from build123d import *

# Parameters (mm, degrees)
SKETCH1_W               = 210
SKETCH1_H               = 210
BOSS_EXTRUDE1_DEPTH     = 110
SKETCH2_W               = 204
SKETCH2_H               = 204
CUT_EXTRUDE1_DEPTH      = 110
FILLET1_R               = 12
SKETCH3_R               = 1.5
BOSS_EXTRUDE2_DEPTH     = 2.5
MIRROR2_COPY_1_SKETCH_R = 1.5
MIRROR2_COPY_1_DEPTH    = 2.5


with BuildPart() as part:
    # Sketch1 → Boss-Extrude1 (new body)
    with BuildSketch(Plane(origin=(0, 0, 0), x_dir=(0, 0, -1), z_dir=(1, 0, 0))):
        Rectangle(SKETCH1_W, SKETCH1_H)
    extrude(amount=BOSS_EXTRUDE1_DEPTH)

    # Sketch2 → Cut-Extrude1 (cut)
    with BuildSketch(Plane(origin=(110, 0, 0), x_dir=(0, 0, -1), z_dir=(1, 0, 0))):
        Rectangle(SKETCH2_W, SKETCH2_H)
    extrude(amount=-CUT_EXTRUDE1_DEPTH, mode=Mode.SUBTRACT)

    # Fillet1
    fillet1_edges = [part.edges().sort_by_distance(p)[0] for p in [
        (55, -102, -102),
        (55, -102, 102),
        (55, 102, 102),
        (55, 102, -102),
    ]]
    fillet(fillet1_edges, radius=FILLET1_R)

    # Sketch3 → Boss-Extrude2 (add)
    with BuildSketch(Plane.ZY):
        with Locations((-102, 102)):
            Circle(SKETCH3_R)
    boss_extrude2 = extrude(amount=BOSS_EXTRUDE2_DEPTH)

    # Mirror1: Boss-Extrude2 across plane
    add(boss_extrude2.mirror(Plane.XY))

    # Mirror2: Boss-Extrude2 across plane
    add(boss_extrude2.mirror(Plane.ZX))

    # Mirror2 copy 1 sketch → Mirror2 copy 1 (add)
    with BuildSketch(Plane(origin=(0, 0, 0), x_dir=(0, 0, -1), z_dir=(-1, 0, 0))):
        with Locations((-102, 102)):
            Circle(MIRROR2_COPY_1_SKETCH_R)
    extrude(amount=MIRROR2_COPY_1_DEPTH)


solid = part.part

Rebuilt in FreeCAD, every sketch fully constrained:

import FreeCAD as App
import Part
import Sketcher
from FreeCAD import Vector
Q = App.Units.Quantity


def edges_at(feature, points):
    """Names of the edges that pass closest to the given points."""
    edges = feature.Shape.Edges
    near = lambda p: min(range(len(edges)), key=lambda i: edges[i].distToShape(Part.Vertex(*p))[0])
    return sorted({f"Edge{near(p) + 1}" for p in points})

doc = App.newDocument("Part")
params = doc.addObject("Spreadsheet::Sheet", "Params")
for row, (alias, value) in enumerate([
    ("sketch1_width", "210 mm"),
    ("pad1_length", "110 mm"),
    ("sketch2_width", "204 mm"),
    ("pocket1_length", "110 mm"),
    ("fillet_radius", "12 mm"),
    ("sketch3_diameter", "3 mm"),
    ("pad2_length", "2.5 mm"),
    ("sketch4_diameter", "3 mm"),
    ("pad3_length", "2.5 mm"),
], start=1):
    params.set(f"A{row}", alias)
    params.set(f"B{row}", "=" + value)
    params.setAlias(f"B{row}", alias)

body = doc.addObject("PartDesign::Body", "Body")

sketch1 = body.newObject("Sketcher::SketchObject", "Sketch")
sketch1.AttachmentSupport = (doc.getObject("YZ_Plane"), [""])
sketch1.MapMode = "FlatFace"
sketch1.addGeometry([
    Part.LineSegment(Vector(105, 105, 0), Vector(-105, 105, 0)),
    Part.LineSegment(Vector(-105, 105, 0), Vector(-105, -105, 0)),
    Part.LineSegment(Vector(-105, -105, 0), Vector(105, -105, 0)),
    Part.LineSegment(Vector(105, -105, 0), Vector(105, 105, 0)),
], False)
sketch1.addConstraint([
    Sketcher.Constraint("Coincident", 0, 2, 1, 1),
    Sketcher.Constraint("Coincident", 1, 2, 2, 1),
    Sketcher.Constraint("Coincident", 2, 2, 3, 1),
    Sketcher.Constraint("Coincident", 3, 2, 0, 1),
    Sketcher.Constraint("Horizontal", 0),
    Sketcher.Constraint("Vertical", 1),
    Sketcher.Constraint("Horizontal", 2),
    Sketcher.Constraint("Vertical", 3),
    Sketcher.Constraint("Symmetric", 0, 2, 2, 2, -1, 1),
    Sketcher.Constraint("Equal", 2, 1),
    Sketcher.Constraint("DistanceX", 0, 2, 0, 1, Q("210 mm")),
])
sketch1.setExpression("Constraints[10]", "Params.sketch1_width")
pad1 = body.newObject("PartDesign::Pad", "Pad")
pad1.Profile = sketch1
pad1.setExpression("Length", "Params.pad1_length")

sketch2 = body.newObject("Sketcher::SketchObject", "Sketch001")
sketch2.AttachmentSupport = (doc.getObject("YZ_Plane"), [""])
sketch2.MapMode = "FlatFace"
sketch2.AttachmentOffset = App.Placement(Vector(0, 0, 110), App.Rotation())
sketch2.addGeometry([
    Part.LineSegment(Vector(102, 102, 0), Vector(-102, 102, 0)),
    Part.LineSegment(Vector(-102, 102, 0), Vector(-102, -102, 0)),
    Part.LineSegment(Vector(-102, -102, 0), Vector(102, -102, 0)),
    Part.LineSegment(Vector(102, -102, 0), Vector(102, 102, 0)),
], False)
sketch2.addConstraint([
    Sketcher.Constraint("Coincident", 0, 2, 1, 1),
    Sketcher.Constraint("Coincident", 1, 2, 2, 1),
    Sketcher.Constraint("Coincident", 2, 2, 3, 1),
    Sketcher.Constraint("Coincident", 3, 2, 0, 1),
    Sketcher.Constraint("Horizontal", 0),
    Sketcher.Constraint("Vertical", 1),
    Sketcher.Constraint("Horizontal", 2),
    Sketcher.Constraint("Vertical", 3),
    Sketcher.Constraint("Symmetric", 0, 2, 2, 2, -1, 1),
    Sketcher.Constraint("Equal", 2, 1),
    Sketcher.Constraint("DistanceX", 0, 2, 0, 1, Q("204 mm")),
])
sketch2.setExpression("Constraints[10]", "Params.sketch2_width")
pocket1 = body.newObject("PartDesign::Pocket", "Pocket")
pocket1.Profile = sketch2
pocket1.setExpression("Length", "Params.pocket1_length")
doc.recompute()

fillet = body.newObject("PartDesign::Fillet", "Fillet")
fillet.Base = (pocket1, edges_at(pocket1, [
    (55, -102, -102),
    (55, -102, 102),
    (55, 102, 102),
    (55, 102, -102),
]))
fillet.setExpression("Radius", "Params.fillet_radius")

sketch3 = body.newObject("Sketcher::SketchObject", "Sketch002")
sketch3.AttachmentSupport = (doc.getObject("YZ_Plane"), [""])
sketch3.MapMode = "FlatFace"
sketch3.addGeometry(Part.Circle(Vector(102, -102, 0), Vector(0, 0, 1), 1.5), False)
sketch3.addConstraint([
    Sketcher.Constraint("Diameter", 0, Q("3 mm")),
    Sketcher.Constraint("DistanceX", -1, 1, 0, 3, Q("102 mm")),
    Sketcher.Constraint("DistanceY", 0, 3, -1, 1, Q("102 mm")),
])
sketch3.setExpression("Constraints[0]", "Params.sketch3_diameter")
pad2 = body.newObject("PartDesign::Pad", "Pad001")
pad2.Profile = sketch3
pad2.setExpression("Length", "Params.pad2_length")
pad2.Reversed = True
doc.recompute()

mirrored = body.newObject("PartDesign::Mirrored", "Mirrored")
mirrored.Originals = [pad2]
mirrored.MirrorPlane = (doc.getObject("XY_Plane"), [""])
body.Tip = mirrored
doc.recompute()

mirrored2 = body.newObject("PartDesign::Mirrored", "Mirrored001")
mirrored2.Originals = [pad2]
mirrored2.MirrorPlane = (doc.getObject("XZ_Plane"), [""])
body.Tip = mirrored2

sketch4 = body.newObject("Sketcher::SketchObject", "Sketch003")
sketch4.AttachmentSupport = (doc.getObject("YZ_Plane"), [""])
sketch4.MapMode = "FlatFace"
sketch4.addGeometry(Part.Circle(Vector(-102, 102, 0), Vector(0, 0, 1), 1.5), False)
sketch4.addConstraint([
    Sketcher.Constraint("Diameter", 0, Q("3 mm")),
    Sketcher.Constraint("DistanceX", 0, 3, -1, 1, Q("102 mm")),
    Sketcher.Constraint("DistanceY", -1, 1, 0, 3, Q("102 mm")),
])
sketch4.setExpression("Constraints[0]", "Params.sketch4_diameter")
pad3 = body.newObject("PartDesign::Pad", "Pad002")
pad3.Profile = sketch4
pad3.setExpression("Length", "Params.pad3_length")
pad3.Reversed = True

doc.recompute()
